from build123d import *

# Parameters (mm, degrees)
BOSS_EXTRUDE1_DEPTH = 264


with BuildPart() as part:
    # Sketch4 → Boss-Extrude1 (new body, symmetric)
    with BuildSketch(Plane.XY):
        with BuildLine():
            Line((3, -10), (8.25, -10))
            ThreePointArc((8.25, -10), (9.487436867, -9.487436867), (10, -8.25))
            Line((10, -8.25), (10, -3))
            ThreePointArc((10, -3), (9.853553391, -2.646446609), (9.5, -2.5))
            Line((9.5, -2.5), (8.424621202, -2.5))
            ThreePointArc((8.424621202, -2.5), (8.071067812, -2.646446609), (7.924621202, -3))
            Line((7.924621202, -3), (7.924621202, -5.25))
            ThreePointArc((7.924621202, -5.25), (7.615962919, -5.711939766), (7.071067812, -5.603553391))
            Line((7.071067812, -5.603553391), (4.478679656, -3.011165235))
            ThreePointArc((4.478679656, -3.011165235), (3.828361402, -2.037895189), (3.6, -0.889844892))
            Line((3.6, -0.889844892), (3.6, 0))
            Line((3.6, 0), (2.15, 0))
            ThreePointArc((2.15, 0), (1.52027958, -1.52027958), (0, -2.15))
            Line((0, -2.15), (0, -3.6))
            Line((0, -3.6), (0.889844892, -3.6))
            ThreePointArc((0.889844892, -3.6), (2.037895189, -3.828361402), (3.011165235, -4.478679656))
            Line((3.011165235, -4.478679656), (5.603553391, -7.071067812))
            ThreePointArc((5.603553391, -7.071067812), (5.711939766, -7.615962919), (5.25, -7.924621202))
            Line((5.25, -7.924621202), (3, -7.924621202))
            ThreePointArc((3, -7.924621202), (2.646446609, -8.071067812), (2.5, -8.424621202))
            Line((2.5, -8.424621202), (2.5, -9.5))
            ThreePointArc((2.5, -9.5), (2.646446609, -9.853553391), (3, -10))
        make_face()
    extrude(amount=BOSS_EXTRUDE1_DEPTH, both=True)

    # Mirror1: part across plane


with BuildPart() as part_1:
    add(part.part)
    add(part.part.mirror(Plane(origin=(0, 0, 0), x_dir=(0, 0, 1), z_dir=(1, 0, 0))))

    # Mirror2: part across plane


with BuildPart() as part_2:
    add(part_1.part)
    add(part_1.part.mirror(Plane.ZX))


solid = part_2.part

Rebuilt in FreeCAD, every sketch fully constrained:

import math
import FreeCAD as App
import Part
import Sketcher

V = App.Vector

doc = App.newDocument("Part")
body = doc.addObject("PartDesign::Body", "Body")

# Sketch on XY plane
sketch1 = doc.addObject("Sketcher::SketchObject", "Sketch")
body.addObject(sketch1)
sketch1.AttachmentSupport = (doc.XY_Plane, [""])
sketch1.MapMode = "FlatFace"
sketch1.addGeometry([
    Part.LineSegment(V(3, -10, 0), V(8.25, -10, 0)),  # 0
    Part.ArcOfCircle(Part.Circle(V(8.25, -8.25, 0), V(0, 0, 1), 1.75), math.radians(-90), math.radians(0)),  # 1
    Part.LineSegment(V(10, -8.25, 0), V(10, -3, 0)),  # 2
    Part.ArcOfCircle(Part.Circle(V(9.5, -3, 0), V(0, 0, 1), 0.5), math.radians(0), math.radians(90)),  # 3
    Part.LineSegment(V(9.5, -2.5, 0), V(8.424621, -2.5, 0)),  # 4
    Part.ArcOfCircle(Part.Circle(V(8.424621, -3, 0), V(0, 0, 1), 0.5), math.radians(90), math.radians(180)),  # 5
    Part.LineSegment(V(7.924621, -3, 0), V(7.924621, -5.25, 0)),  # 6
    Part.ArcOfCircle(Part.Circle(V(7.424621, -5.25, 0), V(0, 0, 1), 0.5), math.radians(-135), math.radians(0)),  # 7
    Part.LineSegment(V(7.071068, -5.603553, 0), V(4.47868, -3.011165, 0)),  # 8
    Part.ArcOfCircle(Part.Circle(V(6.6, -0.889845, 0), V(0, 0, 1), 3), math.radians(180), math.radians(225)),  # 9
    Part.LineSegment(V(3.6, -0.889845, 0), V(3.6, 0, 0)),  # 10
    Part.LineSegment(V(3.6, 0, 0), V(2.15, 0, 0)),  # 11
    Part.ArcOfCircle(Part.Circle(V(0, 0, 0), V(0, 0, 1), 2.15), math.radians(-90), math.radians(0)),  # 12
    Part.LineSegment(V(0, -2.15, 0), V(0, -3.6, 0)),  # 13
    Part.LineSegment(V(0, -3.6, 0), V(0.889845, -3.6, 0)),  # 14
    Part.ArcOfCircle(Part.Circle(V(0.889845, -6.6, 0), V(0, 0, 1), 3), math.radians(45), math.radians(90)),  # 15
    Part.LineSegment(V(3.011165, -4.47868, 0), V(5.603553, -7.071068, 0)),  # 16
    Part.ArcOfCircle(Part.Circle(V(5.25, -7.424621, 0), V(0, 0, 1), 0.5), math.radians(-90), math.radians(45)),  # 17
    Part.LineSegment(V(5.25, -7.924621, 0), V(3, -7.924621, 0)),  # 18
    Part.ArcOfCircle(Part.Circle(V(3, -8.424621, 0), V(0, 0, 1), 0.5), math.radians(90), math.radians(180)),  # 19
    Part.LineSegment(V(2.5, -8.424621, 0), V(2.5, -9.5, 0)),  # 20
    Part.ArcOfCircle(Part.Circle(V(3, -9.5, 0), V(0, 0, 1), 0.5), math.radians(180), math.radians(270)),  # 21
], False)
sketch1.addConstraint([
    Sketcher.Constraint("Tangent", 0, 2, 1, 1),
    Sketcher.Constraint("Tangent", 1, 2, 2, 1),
    Sketcher.Constraint("Tangent", 2, 2, 3, 1),
    Sketcher.Constraint("Tangent", 3, 2, 4, 1),
    Sketcher.Constraint("Tangent", 4, 2, 5, 1),
    Sketcher.Constraint("Tangent", 5, 2, 6, 1),
    Sketcher.Constraint("Tangent", 6, 2, 7, 2),
    Sketcher.Constraint("Tangent", 7, 1, 8, 1),
    Sketcher.Constraint("Tangent", 8, 2, 9, 2),
    Sketcher.Constraint("Tangent", 9, 1, 10, 1),
    Sketcher.Constraint("Coincident", 10, 2, 11, 1),
    Sketcher.Constraint("Coincident", 11, 2, 12, 2),
    Sketcher.Constraint("Coincident", 12, 1, 13, 1),
    Sketcher.Constraint("Coincident", 13, 2, 14, 1),
    Sketcher.Constraint("Tangent", 14, 2, 15, 2),
    Sketcher.Constraint("Tangent", 15, 1, 16, 1),
    Sketcher.Constraint("Tangent", 16, 2, 17, 2),
    Sketcher.Constraint("Tangent", 17, 1, 18, 1),
    Sketcher.Constraint("Tangent", 18, 2, 19, 1),
    Sketcher.Constraint("Tangent", 19, 2, 20, 1),
    Sketcher.Constraint("Tangent", 20, 2, 21, 1),
    Sketcher.Constraint("Tangent", 21, 2, 0, 1),
    Sketcher.Constraint("Horizontal", 0),
    Sketcher.Constraint("Vertical", 2),
    Sketcher.Constraint("Horizontal", 4),
    Sketcher.Constraint("Vertical", 6),
    Sketcher.Constraint("Vertical", 10),
    Sketcher.Constraint("Horizontal", 11),
    Sketcher.Constraint("Vertical", 13),
    Sketcher.Constraint("Horizontal", 14),
    Sketcher.Constraint("Horizontal", 18),
    Sketcher.Constraint("Vertical", 20),
    Sketcher.Constraint("Coincident", 12, 3, -1, 1),
    Sketcher.Constraint("Equal", 3, 5),
    Sketcher.Constraint("Equal", 5, 7),
    Sketcher.Constraint("Equal", 9, 15),
    Sketcher.Constraint("Equal", 7, 17),
    Sketcher.Constraint("Equal", 17, 19),
    Sketcher.Constraint("Equal", 19, 21),
    Sketcher.Constraint("PointOnObject", 10, 2, -1),
    Sketcher.Constraint("PointOnObject", 12, 1, -2),
    Sketcher.Constraint("Parallel", 8, 16),
    Sketcher.Constraint("Equal", 0, 2),
    Sketcher.Constraint("Equal", 18, 6),
    Sketcher.Constraint("Equal", 14, 10),
    Sketcher.Constraint("Equal", 11, 13),
    Sketcher.Constraint("Equal", 4, 20),
    Sketcher.Constraint("Equal", 8, 16),
    Sketcher.Constraint("Radius", 9, 3.0),
    Sketcher.Constraint("Radius", 3, 0.5),
    Sketcher.Constraint("Radius", 1, 1.75),
    Sketcher.Constraint("Radius", 12, 2.15),
    Sketcher.Constraint("DistanceY", 3, 3, -1, 1, 3.0),
    Sketcher.Constraint("DistanceY", 0, 2, -1, 1, 10.0),
    Sketcher.Constraint("DistanceY", 1, 3, 7, 3, 3.0),
    Sketcher.Constraint("DistanceX", 11, 2, 11, 1, 1.45),
    Sketcher.Constraint("DistanceX", 4, 2, 4, 1, 1.075379),
])
pad1 = doc.addObject("PartDesign::Pad", "Pad")
body.addObject(pad1)
pad1.Profile = sketch1
pad1.Length = 528
pad1.Midplane = True
body2 = doc.addObject("PartDesign::Body", "Body001")
doc.recompute()

body2.BaseFeature = body
doc.recompute()

mirroring = doc.addObject("Part::Mirroring", "Mirroring")
mirroring.Source = body
mirroring.Base = V(0, 0, 0)
mirroring.Normal = V(1, 0, 0)
body3 = doc.addObject("PartDesign::Body", "Body002")
body3.BaseFeature = mirroring
boolean = doc.addObject("PartDesign::Boolean", "Boolean")
body2.addObject(boolean)
boolean.Type = "Fuse"
boolean.addObjects([body3])
doc.recompute()
body4 = doc.addObject("PartDesign::Body", "Body003")
doc.recompute()

body4.BaseFeature = body2
doc.recompute()

mirroring2 = doc.addObject("Part::Mirroring", "Mirroring001")
mirroring2.Source = body2
mirroring2.Base = V(0, 0, 0)
mirroring2.Normal = V(0, 1, 0)
body5 = doc.addObject("PartDesign::Body", "Body004")
body5.BaseFeature = mirroring2
boolean2 = doc.addObject("PartDesign::Boolean", "Boolean001")
body4.addObject(boolean2)
boolean2.Type = "Fuse"
boolean2.addObjects([body5])
doc.recompute()
mirroring.Visibility = False
mirroring2.Visibility = False

doc.recompute()
